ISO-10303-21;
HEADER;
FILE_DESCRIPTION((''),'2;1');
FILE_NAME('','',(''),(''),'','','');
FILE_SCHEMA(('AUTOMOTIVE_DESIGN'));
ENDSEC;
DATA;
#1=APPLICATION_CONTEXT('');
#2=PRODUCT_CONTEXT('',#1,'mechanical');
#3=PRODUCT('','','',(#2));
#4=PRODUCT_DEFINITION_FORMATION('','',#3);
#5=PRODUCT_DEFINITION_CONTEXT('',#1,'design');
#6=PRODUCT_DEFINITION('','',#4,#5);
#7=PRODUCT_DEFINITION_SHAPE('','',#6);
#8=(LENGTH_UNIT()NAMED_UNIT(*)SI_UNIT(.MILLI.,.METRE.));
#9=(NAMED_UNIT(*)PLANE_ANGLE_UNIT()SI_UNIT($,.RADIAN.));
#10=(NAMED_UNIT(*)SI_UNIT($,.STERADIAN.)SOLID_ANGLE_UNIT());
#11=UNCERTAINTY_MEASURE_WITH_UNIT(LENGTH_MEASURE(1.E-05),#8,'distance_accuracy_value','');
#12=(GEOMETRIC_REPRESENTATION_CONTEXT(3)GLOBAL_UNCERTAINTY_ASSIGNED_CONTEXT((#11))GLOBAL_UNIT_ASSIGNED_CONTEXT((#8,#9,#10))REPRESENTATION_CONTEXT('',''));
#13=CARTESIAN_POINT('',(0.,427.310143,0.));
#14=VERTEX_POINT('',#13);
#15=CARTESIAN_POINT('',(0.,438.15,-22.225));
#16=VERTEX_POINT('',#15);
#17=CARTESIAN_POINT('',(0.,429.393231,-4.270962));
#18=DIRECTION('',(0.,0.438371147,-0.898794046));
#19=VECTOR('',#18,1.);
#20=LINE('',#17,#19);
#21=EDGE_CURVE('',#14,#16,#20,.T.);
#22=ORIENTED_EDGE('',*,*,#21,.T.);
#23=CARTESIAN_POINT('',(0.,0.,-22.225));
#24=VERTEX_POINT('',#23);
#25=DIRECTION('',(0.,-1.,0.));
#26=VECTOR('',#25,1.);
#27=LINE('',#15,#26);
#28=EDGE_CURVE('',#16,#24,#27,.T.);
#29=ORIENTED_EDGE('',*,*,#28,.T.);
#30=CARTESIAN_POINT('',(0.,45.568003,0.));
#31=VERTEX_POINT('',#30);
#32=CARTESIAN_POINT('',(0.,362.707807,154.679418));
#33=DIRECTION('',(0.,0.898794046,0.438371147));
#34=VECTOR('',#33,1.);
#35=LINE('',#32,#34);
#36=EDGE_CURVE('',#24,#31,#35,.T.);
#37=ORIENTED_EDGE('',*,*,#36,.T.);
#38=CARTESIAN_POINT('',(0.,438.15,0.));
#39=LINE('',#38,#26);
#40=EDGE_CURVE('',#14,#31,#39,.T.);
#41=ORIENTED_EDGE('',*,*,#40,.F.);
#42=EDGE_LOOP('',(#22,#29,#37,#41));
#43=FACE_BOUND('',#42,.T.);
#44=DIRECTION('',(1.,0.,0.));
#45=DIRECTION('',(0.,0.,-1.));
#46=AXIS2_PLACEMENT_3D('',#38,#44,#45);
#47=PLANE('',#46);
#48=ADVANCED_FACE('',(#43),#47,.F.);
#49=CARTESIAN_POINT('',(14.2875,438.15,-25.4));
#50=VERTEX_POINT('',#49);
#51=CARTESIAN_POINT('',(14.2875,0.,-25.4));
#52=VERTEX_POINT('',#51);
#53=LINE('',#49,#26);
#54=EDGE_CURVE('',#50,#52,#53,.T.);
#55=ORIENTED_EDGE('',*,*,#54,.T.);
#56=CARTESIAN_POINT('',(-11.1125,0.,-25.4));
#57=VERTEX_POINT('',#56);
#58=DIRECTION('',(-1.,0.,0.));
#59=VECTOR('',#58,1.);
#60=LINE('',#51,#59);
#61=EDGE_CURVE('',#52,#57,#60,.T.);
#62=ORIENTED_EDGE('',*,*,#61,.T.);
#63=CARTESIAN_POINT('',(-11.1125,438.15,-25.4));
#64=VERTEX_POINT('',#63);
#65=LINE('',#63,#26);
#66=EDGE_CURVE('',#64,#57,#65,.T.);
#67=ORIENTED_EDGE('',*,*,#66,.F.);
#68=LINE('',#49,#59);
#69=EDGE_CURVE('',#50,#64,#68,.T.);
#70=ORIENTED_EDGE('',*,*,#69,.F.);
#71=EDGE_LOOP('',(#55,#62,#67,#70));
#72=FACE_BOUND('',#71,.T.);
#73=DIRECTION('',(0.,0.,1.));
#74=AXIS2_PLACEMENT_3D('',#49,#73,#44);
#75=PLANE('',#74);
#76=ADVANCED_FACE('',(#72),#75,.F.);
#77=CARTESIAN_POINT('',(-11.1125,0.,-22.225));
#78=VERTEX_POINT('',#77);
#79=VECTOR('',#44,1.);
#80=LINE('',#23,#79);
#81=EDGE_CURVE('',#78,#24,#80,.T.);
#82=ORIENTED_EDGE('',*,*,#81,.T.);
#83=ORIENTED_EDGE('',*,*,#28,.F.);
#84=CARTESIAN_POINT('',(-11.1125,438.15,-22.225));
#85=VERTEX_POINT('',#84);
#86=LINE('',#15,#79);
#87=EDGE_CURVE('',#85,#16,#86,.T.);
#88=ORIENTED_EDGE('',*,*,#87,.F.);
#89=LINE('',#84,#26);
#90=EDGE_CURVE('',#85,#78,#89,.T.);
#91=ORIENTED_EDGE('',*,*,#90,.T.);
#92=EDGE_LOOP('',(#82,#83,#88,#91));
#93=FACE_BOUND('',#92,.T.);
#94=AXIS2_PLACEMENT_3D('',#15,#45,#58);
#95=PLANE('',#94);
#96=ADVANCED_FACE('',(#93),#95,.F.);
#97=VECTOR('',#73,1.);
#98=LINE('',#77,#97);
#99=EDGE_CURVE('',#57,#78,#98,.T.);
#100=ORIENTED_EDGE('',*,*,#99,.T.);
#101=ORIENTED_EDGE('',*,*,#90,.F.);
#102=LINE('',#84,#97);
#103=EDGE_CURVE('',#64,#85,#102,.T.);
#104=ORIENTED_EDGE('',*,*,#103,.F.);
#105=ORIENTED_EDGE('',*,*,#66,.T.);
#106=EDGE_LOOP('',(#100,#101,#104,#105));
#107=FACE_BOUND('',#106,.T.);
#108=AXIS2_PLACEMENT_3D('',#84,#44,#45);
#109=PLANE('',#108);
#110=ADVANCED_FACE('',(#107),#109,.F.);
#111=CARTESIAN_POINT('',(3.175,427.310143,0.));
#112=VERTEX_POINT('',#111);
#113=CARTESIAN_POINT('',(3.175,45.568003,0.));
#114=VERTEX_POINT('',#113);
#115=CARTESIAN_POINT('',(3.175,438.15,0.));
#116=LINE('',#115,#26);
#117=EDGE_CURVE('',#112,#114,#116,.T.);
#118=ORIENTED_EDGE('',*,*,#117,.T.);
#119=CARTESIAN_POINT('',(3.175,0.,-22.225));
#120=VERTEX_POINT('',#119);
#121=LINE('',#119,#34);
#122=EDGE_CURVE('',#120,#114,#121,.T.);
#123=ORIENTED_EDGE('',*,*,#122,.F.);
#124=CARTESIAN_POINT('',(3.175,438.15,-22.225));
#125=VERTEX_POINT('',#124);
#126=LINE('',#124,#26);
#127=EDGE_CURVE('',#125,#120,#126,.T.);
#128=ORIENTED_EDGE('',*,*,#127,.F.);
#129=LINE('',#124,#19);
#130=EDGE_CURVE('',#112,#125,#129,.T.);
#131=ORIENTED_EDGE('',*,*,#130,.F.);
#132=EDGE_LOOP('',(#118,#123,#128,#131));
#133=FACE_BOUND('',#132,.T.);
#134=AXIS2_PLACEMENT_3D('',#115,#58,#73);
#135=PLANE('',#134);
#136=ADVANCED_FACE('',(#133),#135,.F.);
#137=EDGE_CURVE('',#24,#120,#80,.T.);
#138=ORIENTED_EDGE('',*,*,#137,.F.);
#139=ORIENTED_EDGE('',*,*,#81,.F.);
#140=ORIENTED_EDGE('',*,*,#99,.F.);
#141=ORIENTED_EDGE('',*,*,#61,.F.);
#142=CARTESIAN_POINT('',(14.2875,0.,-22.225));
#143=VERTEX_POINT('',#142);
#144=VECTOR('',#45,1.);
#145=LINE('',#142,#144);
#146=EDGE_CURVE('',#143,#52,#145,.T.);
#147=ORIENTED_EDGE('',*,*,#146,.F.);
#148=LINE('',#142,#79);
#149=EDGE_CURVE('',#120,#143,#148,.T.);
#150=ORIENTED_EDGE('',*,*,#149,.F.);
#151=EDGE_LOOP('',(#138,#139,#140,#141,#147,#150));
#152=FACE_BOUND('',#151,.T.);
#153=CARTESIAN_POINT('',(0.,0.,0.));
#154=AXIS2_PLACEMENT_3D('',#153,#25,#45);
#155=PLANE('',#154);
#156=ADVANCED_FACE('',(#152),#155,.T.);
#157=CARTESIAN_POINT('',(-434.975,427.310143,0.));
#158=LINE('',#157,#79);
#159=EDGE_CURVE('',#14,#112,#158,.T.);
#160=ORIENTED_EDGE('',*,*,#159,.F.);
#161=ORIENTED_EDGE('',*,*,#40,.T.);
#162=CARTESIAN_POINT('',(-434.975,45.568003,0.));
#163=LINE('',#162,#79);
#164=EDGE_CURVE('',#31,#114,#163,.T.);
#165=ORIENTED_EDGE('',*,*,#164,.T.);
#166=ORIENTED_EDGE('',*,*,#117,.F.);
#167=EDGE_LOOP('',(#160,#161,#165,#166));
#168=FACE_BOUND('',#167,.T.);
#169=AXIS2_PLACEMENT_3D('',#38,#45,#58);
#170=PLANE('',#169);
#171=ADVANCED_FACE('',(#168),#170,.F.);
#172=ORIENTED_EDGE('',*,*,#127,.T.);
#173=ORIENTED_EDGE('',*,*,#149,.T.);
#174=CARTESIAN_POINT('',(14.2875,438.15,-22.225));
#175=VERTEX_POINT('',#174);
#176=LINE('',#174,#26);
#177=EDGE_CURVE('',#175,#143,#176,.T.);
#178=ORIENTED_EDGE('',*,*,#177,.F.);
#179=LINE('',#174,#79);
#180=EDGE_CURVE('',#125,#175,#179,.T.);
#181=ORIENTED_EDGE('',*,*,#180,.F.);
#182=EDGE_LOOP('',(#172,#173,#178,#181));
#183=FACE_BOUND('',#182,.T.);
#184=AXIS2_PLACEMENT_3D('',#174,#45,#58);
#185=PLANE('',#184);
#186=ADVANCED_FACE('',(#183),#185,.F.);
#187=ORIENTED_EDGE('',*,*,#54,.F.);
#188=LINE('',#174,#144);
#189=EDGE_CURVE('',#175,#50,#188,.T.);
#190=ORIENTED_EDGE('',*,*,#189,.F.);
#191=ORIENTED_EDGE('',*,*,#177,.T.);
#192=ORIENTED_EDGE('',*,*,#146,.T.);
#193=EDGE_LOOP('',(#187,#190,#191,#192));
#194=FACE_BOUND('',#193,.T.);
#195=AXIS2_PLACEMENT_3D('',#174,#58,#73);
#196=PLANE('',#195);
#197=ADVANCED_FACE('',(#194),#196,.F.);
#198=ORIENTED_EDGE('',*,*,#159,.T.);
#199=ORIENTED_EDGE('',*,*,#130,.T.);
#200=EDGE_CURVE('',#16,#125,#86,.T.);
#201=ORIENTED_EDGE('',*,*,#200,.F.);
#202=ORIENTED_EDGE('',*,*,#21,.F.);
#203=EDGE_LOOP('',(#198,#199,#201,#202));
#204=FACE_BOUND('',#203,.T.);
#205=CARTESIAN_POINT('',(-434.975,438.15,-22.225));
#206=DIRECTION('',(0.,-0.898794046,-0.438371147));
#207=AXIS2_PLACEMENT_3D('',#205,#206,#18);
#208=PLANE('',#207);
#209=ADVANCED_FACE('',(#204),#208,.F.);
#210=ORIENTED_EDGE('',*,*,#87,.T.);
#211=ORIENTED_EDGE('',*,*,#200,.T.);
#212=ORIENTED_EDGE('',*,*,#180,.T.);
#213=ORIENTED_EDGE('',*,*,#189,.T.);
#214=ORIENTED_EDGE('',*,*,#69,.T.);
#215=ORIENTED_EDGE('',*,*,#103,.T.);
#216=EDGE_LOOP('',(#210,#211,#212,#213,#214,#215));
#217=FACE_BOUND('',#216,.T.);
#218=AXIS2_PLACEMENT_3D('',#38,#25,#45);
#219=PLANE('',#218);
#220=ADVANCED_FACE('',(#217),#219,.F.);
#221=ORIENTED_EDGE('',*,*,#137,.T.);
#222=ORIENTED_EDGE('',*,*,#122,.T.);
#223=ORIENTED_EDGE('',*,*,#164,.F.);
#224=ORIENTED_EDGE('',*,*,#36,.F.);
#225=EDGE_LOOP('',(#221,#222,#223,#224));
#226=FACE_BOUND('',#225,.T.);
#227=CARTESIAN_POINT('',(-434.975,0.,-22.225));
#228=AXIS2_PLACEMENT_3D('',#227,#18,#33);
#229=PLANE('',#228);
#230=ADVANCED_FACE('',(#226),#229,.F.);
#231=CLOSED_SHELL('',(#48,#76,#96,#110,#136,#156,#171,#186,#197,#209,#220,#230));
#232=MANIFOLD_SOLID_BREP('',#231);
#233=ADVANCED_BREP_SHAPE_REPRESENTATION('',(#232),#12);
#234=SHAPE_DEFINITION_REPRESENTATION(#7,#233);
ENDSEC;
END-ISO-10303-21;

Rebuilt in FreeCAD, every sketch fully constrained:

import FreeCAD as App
import Part
import Sketcher

V = App.Vector
Q = App.Units.Quantity

doc = App.newDocument("Part")
body = doc.addObject("PartDesign::Body", "Body")

# Sketch on XZ plane
sketch1 = doc.addObject("Sketcher::SketchObject", "Sketch")
body.addObject(sketch1)
sketch1.AttachmentSupport = (doc.XZ_Plane, [""])
sketch1.MapMode = "FlatFace"
sketch1.addGeometry(Part.LineSegment(V(0, 0, 0), V(3.175, 0, 0)), False)
sketch1.addGeometry(Part.LineSegment(V(3.175, 0, 0), V(3.175, -22.225, 0)), False)
sketch1.addGeometry(Part.LineSegment(V(3.175, -22.225, 0), V(14.2875, -22.225, 0)), False)
sketch1.addGeometry(Part.LineSegment(V(14.2875, -22.225, 0), V(14.2875, -25.4, 0)), False)
sketch1.addGeometry(Part.LineSegment(V(14.2875, -25.4, 0), V(-11.1125, -25.4, 0)), False)
sketch1.addGeometry(Part.LineSegment(V(-11.1125, -25.4, 0), V(-11.1125, -22.225, 0)), False)
sketch1.addGeometry(Part.LineSegment(V(-11.1125, -22.225, 0), V(0, -22.225, 0)), False)
sketch1.addGeometry(Part.LineSegment(V(0, -22.225, 0), V(0, 0, 0)), False)
sketch1.addConstraint(Sketcher.Constraint("Coincident", 0, 2, 1, 1))
sketch1.addConstraint(Sketcher.Constraint("Coincident", 1, 2, 2, 1))
sketch1.addConstraint(Sketcher.Constraint("Coincident", 2, 2, 3, 1))
sketch1.addConstraint(Sketcher.Constraint("Coincident", 3, 2, 4, 1))
sketch1.addConstraint(Sketcher.Constraint("Coincident", 4, 2, 5, 1))
sketch1.addConstraint(Sketcher.Constraint("Coincident", 5, 2, 6, 1))
sketch1.addConstraint(Sketcher.Constraint("Coincident", 6, 2, 7, 1))
sketch1.addConstraint(Sketcher.Constraint("Coincident", 7, 2, 0, 1))
sketch1.addConstraint(Sketcher.Constraint("Horizontal", 0))
sketch1.addConstraint(Sketcher.Constraint("Vertical", 1))
sketch1.addConstraint(Sketcher.Constraint("Horizontal", 2))
sketch1.addConstraint(Sketcher.Constraint("Vertical", 3))
sketch1.addConstraint(Sketcher.Constraint("Horizontal", 4))
sketch1.addConstraint(Sketcher.Constraint("Vertical", 5))
sketch1.addConstraint(Sketcher.Constraint("Horizontal", 6))
sketch1.addConstraint(Sketcher.Constraint("Vertical", 7))
sketch1.addConstraint(Sketcher.Constraint("Coincident", 7, 2, -1, 1))
sketch1.addConstraint(Sketcher.Constraint("Horizontal", 2, 2, 5, 2))
sketch1.addConstraint(Sketcher.Constraint("Equal", 2, 6))
sketch1.addConstraint(Sketcher.Constraint("Equal", 0, 3))
sketch1.addConstraint(Sketcher.Constraint("DistanceX", 4, 2, 4, 1, Q("1 in")))
sketch1.addConstraint(Sketcher.Constraint("DistanceY", 3, 2, -1, 1, Q("1 in")))
sketch1.addConstraint(Sketcher.Constraint("DistanceX", 0, 1, 0, 2, Q("0.125 in")))
pad1 = doc.addObject("PartDesign::Pad", "Pad")
body.addObject(pad1)
pad1.Profile = sketch1
pad1.Length = Q("17.25 in")
pad1.Reversed = True

# Sketch on YZ plane
sketch2 = doc.addObject("Sketcher::SketchObject", "Sketch001")
body.addObject(sketch2)
sketch2.AttachmentSupport = (doc.YZ_Plane, [""])
sketch2.MapMode = "FlatFace"
sketch2.AttachmentOffset = App.Placement(V(0, 0, 0.125 * 25.4), App.Rotation())
sketch2.addGeometry(Part.LineSegment(V(0, -22.225, 0), V(45.568003, 0, 0)), False)
sketch2.addGeometry(Part.LineSegment(V(45.568003, 0, 0), V(0, 0, 0)), False)
sketch2.addGeometry(Part.LineSegment(V(0, 0, 0), V(0, -22.225, 0)), False)
sketch2.addGeometry(Part.LineSegment(V(427.310143, 0, 0), V(438.15, -22.225, 0)), False)
sketch2.addGeometry(Part.LineSegment(V(438.15, -22.225, 0), V(438.15, 0, 0)), False)
sketch2.addGeometry(Part.LineSegment(V(438.15, 0, 0), V(427.310143, 0, 0)), False)
sketch2.addConstraint(Sketcher.Constraint("Coincident", 0, 2, 1, 1))
sketch2.addConstraint(Sketcher.Constraint("Coincident", 1, 2, 2, 1))
sketch2.addConstraint(Sketcher.Constraint("Coincident", 2, 2, 0, 1))
sketch2.addConstraint(Sketcher.Constraint("Coincident", 3, 2, 4, 1))
sketch2.addConstraint(Sketcher.Constraint("Coincident", 4, 2, 5, 1))
sketch2.addConstraint(Sketcher.Constraint("Coincident", 5, 2, 3, 1))
sketch2.addConstraint(Sketcher.Constraint("Horizontal", 1))
sketch2.addConstraint(Sketcher.Constraint("Vertical", 2))
sketch2.addConstraint(Sketcher.Constraint("Vertical", 4))
sketch2.addConstraint(Sketcher.Constraint("Horizontal", 5))
sketch2.addConstraint(Sketcher.Constraint("Coincident", 1, 2, -1, 1))
sketch2.addConstraint(Sketcher.Constraint("PointOnObject", 4, 2, -1))
sketch2.addConstraint(Sketcher.Constraint("Perpendicular", 0, 3))
sketch2.addConstraint(Sketcher.Constraint("Horizontal", 2, 2, 3, 2))
sketch2.addConstraint(Sketcher.Constraint("Angle", 0, Q("26 deg")))
sketch2.addConstraint(Sketcher.Constraint("DistanceY", 2, 2, 2, 1, Q("0.875 in")))
sketch2.addConstraint(Sketcher.Constraint("DistanceX", -1, 1, 3, 2, Q("17.25 in")))
pocket1 = doc.addObject("PartDesign::Pocket", "Pocket")
body.addObject(pocket1)
pocket1.Profile = sketch2
pocket1.Length = Q("17.25 in")

doc.recompute()
